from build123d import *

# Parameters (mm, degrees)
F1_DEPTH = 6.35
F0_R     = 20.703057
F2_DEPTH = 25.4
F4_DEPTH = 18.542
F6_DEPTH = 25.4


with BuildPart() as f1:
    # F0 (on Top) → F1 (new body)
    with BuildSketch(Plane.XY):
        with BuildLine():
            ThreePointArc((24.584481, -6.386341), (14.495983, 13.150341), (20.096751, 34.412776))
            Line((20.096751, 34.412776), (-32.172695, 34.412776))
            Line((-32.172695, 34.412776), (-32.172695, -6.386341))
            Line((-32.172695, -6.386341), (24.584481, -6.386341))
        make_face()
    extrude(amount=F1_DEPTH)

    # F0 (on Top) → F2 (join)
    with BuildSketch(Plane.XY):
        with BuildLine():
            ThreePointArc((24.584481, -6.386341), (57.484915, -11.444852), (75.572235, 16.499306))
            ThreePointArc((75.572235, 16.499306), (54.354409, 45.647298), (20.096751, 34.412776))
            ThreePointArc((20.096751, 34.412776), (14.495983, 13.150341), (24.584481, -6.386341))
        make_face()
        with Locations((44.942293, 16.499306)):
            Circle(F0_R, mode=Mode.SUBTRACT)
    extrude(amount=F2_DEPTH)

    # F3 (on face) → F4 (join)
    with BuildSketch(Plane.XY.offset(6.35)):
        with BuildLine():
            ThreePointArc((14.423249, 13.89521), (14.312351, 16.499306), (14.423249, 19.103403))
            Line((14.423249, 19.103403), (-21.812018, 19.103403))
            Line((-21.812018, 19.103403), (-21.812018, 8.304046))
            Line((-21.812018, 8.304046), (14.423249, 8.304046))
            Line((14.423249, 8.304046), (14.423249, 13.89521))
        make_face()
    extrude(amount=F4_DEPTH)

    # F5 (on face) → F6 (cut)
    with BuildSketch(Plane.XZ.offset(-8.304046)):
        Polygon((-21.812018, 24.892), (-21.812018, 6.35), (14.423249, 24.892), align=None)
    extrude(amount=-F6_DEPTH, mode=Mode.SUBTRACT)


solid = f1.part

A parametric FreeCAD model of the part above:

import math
import FreeCAD as App
import Part
import Sketcher
from FreeCAD import Vector
Q = App.Units.Quantity


def add_polygon(sketch, points):
    """Adds a closed chain of lines whose ends are joined by coincident constraints."""
    first, n = sketch.GeometryCount, len(points)
    for a, b in zip(points, points[1:] + points[:1]):
        sketch.addGeometry(Part.LineSegment(App.Vector(*a, 0), App.Vector(*b, 0)), False)
    for i in range(n):
        sketch.addConstraint(Sketcher.Constraint("Coincident", first + i, 2, first + (i + 1) % n, 1))

doc = App.newDocument("Part")
params = doc.addObject("Spreadsheet::Sheet", "Params")
for row, (alias, value) in enumerate([
    ("pad1_length", "0.25 in"),
    ("pad2_length", "1 in"),
    ("pad3_length", "0.73 in"),
    ("sketch4_height", "0.73 in"),
    ("pocket1_length", "1 in"),
], start=1):
    params.set(f"A{row}", alias)
    params.set(f"B{row}", "=" + value)
    params.setAlias(f"B{row}", alias)

body = doc.addObject("PartDesign::Body", "Body")

sketch1 = body.newObject("Sketcher::SketchObject", "Sketch")
sketch1.AttachmentSupport = (doc.getObject("XY_Plane"), [""])
sketch1.MapMode = "FlatFace"
sketch1.addGeometry([
    Part.ArcOfCircle(Part.Circle(Vector(45, 16, 0), Vector(0, 0, 1), 31), math.radians(144), math.radians(228)),
    Part.LineSegment(Vector(20, 34, 0), Vector(-32, 34, 0)),
    Part.LineSegment(Vector(-32, 34, 0), Vector(-32, -6, 0)),
    Part.LineSegment(Vector(-32, -6, 0), Vector(25, -6, 0)),
], False)
sketch1.addConstraint([
    Sketcher.Constraint("Coincident", 0, 1, 1, 1),
    Sketcher.Constraint("Coincident", 1, 2, 2, 1),
    Sketcher.Constraint("Coincident", 2, 2, 3, 1),
    Sketcher.Constraint("Coincident", 3, 2, 0, 2),
    Sketcher.Constraint("Horizontal", 1),
    Sketcher.Constraint("Vertical", 2),
    Sketcher.Constraint("Horizontal", 3),
    Sketcher.Constraint("Radius", 0, Q("30.629942 mm")),
    Sketcher.Constraint("DistanceX", 1, 2, 1, 1, Q("52.269446 mm")),
    Sketcher.Constraint("DistanceX", 3, 1, 3, 2, Q("56.757176 mm")),
    Sketcher.Constraint("DistanceY", 2, 2, 2, 1, Q("40.799117 mm")),
    Sketcher.Constraint("DistanceX", -1, 1, 0, 1, Q("20.096751 mm")),
    Sketcher.Constraint("DistanceY", 2, 2, -1, 1, Q("6.386341 mm")),
])
pad1 = body.newObject("PartDesign::Pad", "Pad")
pad1.Profile = sketch1
pad1.setExpression("Length", "Params.pad1_length")

sketch2 = body.newObject("Sketcher::SketchObject", "Sketch001")
sketch2.AttachmentSupport = (doc.getObject("XY_Plane"), [""])
sketch2.MapMode = "FlatFace"
sketch2.addGeometry([
    Part.ArcOfCircle(Part.Circle(Vector(45, 16, 0), Vector(0, 0, 1), 31), math.radians(-132), math.radians(0)),
    Part.ArcOfCircle(Part.Circle(Vector(45, 16, 0), Vector(0, 0, 1), 31), math.radians(0), math.radians(144)),
    Part.ArcOfCircle(Part.Circle(Vector(45, 16, 0), Vector(0, 0, 1), 31), math.radians(144), math.radians(228)),
    Part.Circle(Vector(45, 16, 0), Vector(0, 0, 1), 21),
], False)
sketch2.addConstraint([
    Sketcher.Constraint("Tangent", 0, 2, 1, 1),
    Sketcher.Constraint("Tangent", 1, 2, 2, 1),
    Sketcher.Constraint("Tangent", 2, 2, 0, 1),
    Sketcher.Constraint("Coincident", 3, 3, 0, 3),
    Sketcher.Constraint("Horizontal", 3, 3, 0, 2),
    Sketcher.Constraint("Diameter", 3, Q("41.406114 mm")),
    Sketcher.Constraint("Radius", 0, Q("30.629942 mm")),
    Sketcher.Constraint("DistanceX", -1, 1, 1, 2, Q("20.096751 mm")),
    Sketcher.Constraint("DistanceX", -1, 1, 2, 2, Q("24.584481 mm")),
    Sketcher.Constraint("DistanceY", 2, 2, -1, 1, Q("6.386341 mm")),
    Sketcher.Constraint("DistanceX", 1, 2, 0, 3, Q("24.845542 mm")),
])
pad2 = body.newObject("PartDesign::Pad", "Pad001")
pad2.Profile = sketch2
pad2.setExpression("Length", "Params.pad2_length")

sketch3 = body.newObject("Sketcher::SketchObject", "Sketch002")
sketch3.AttachmentSupport = (doc.getObject("XY_Plane"), [""])
sketch3.MapMode = "FlatFace"
sketch3.AttachmentOffset = App.Placement(Vector(0, 0, 0.25 * 25.4), App.Rotation())
sketch3.addGeometry([
    Part.ArcOfCircle(Part.Circle(Vector(45, 16, 0), Vector(0, 0, 1), 31), math.radians(175.12), math.radians(184.88)),
    Part.LineSegment(Vector(14, 19, 0), Vector(-22, 19, 0)),
    Part.LineSegment(Vector(-22, 19, 0), Vector(-22, 8, 0)),
    Part.LineSegment(Vector(-22, 8, 0), Vector(14, 8, 0)),
    Part.LineSegment(Vector(14, 8, 0), Vector(14, 14, 0)),
], False)
sketch3.addConstraint([
    Sketcher.Constraint("Coincident", 0, 1, 1, 1),
    Sketcher.Constraint("Coincident", 1, 2, 2, 1),
    Sketcher.Constraint("Coincident", 2, 2, 3, 1),
    Sketcher.Constraint("Coincident", 3, 2, 4, 1),
    Sketcher.Constraint("Coincident", 4, 2, 0, 2),
    Sketcher.Constraint("Horizontal", 1),
    Sketcher.Constraint("Vertical", 2),
    Sketcher.Constraint("Horizontal", 3),
    Sketcher.Constraint("Vertical", 4),
    Sketcher.Constraint("Vertical", 0, 1, 3, 2),
    Sketcher.Constraint("Radius", 0, Q("30.630025 mm")),
    Sketcher.Constraint("DistanceX", 1, 2, 1, 1, Q("36.235267 mm")),
    Sketcher.Constraint("DistanceY", 2, 2, 2, 1, Q("10.799357 mm")),
    Sketcher.Constraint("DistanceY", 4, 1, 4, 2, Q("5.591164 mm")),
    Sketcher.Constraint("DistanceX", -1, 1, 0, 1, Q("14.423249 mm")),
    Sketcher.Constraint("DistanceY", -1, 1, 4, 2, Q("13.89521 mm")),
])
pad3 = body.newObject("PartDesign::Pad", "Pad002")
pad3.Profile = sketch3
pad3.setExpression("Length", "Params.pad3_length")

sketch4 = body.newObject("Sketcher::SketchObject", "Sketch003")
sketch4.AttachmentSupport = (doc.getObject("XZ_Plane"), [""])
sketch4.MapMode = "FlatFace"
sketch4.AttachmentOffset = App.Placement(Vector(0, 0, -8.304046), App.Rotation())
add_polygon(sketch4, [(-22, 25), (-22, 6), (14, 25)])
sketch4.addConstraint([
    Sketcher.Constraint("Vertical", 0),
    Sketcher.Constraint("Horizontal", 2),
    Sketcher.Constraint("DistanceY", 0, 2, 0, 1, Q("0.73 in")),
    Sketcher.Constraint("DistanceY", -1, 1, 0, 2, Q("0.25 in")),
    Sketcher.Constraint("DistanceX", 2, 2, 2, 1, Q("36.235267 mm")),
    Sketcher.Constraint("DistanceX", -1, 1, 1, 2, Q("14.423249 mm")),
])
sketch4.setExpression("Constraints[5]", "Params.sketch4_height")
pocket1 = body.newObject("PartDesign::Pocket", "Pocket")
pocket1.Profile = sketch4
pocket1.setExpression("Length", "Params.pocket1_length")

doc.recompute()
